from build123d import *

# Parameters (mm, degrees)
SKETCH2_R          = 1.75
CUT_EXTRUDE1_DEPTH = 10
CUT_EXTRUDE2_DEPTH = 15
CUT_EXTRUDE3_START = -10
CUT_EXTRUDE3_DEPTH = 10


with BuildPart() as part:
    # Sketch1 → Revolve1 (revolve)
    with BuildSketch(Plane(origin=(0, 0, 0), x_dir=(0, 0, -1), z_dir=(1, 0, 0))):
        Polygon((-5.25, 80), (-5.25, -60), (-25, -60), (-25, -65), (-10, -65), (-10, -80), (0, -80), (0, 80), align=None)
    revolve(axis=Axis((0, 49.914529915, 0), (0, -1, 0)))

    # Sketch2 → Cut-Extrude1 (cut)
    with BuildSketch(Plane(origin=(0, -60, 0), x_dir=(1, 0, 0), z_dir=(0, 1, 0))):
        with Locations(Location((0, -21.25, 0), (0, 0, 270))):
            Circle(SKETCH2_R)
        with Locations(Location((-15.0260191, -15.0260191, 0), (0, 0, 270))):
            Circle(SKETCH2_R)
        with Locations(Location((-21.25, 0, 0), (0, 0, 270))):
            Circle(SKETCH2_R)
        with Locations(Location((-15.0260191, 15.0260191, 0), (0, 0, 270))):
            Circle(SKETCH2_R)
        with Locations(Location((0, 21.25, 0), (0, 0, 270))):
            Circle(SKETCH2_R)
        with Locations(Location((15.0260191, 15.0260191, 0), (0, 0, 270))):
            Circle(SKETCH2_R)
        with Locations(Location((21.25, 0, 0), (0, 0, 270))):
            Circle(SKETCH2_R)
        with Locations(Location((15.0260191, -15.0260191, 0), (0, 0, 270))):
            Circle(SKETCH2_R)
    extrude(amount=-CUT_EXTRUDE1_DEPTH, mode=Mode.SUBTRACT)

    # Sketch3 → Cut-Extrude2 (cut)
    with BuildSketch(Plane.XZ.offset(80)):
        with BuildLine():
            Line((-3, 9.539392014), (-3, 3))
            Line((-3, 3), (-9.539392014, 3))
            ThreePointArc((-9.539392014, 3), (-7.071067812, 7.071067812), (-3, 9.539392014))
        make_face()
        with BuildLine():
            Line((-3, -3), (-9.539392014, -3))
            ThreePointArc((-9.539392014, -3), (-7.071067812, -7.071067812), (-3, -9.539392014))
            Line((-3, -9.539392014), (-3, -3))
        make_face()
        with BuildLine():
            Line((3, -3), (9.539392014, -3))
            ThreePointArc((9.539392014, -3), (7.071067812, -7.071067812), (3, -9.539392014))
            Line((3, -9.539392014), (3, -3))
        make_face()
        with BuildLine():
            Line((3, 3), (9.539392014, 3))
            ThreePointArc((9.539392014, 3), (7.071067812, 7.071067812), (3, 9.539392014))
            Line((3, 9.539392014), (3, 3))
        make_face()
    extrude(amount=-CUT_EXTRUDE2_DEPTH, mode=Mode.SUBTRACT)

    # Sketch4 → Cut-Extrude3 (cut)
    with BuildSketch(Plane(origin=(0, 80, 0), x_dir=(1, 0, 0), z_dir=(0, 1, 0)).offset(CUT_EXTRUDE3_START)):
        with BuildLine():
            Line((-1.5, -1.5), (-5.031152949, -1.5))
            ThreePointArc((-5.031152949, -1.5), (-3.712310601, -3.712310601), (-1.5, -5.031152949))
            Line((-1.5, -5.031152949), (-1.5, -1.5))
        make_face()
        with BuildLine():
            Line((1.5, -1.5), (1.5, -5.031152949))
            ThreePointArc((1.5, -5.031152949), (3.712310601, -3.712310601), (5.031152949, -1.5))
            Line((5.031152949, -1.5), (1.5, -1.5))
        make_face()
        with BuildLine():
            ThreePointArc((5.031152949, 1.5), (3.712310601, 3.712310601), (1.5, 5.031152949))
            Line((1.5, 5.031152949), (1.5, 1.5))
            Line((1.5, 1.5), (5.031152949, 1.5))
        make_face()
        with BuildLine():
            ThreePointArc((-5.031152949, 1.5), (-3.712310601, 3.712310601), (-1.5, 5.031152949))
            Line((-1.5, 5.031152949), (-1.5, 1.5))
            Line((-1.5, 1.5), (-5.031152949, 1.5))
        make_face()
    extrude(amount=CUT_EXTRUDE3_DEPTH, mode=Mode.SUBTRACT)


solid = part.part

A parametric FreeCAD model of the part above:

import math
import FreeCAD as App
import Part
import Sketcher
Q = App.Units.Quantity

doc = App.newDocument("Part")
body = doc.addObject("PartDesign::Body", "Body")

sketch1 = doc.addObject("Sketcher::SketchObject", "Sketch")
body.addObject(sketch1)
sketch1.AttachmentSupport = (doc.YZ_Plane, [""])
sketch1.MapMode = "FlatFace"
sketch1.addGeometry(Part.LineSegment(App.Vector(80, 5, 0), App.Vector(-60, 5, 0)), False)
sketch1.addGeometry(Part.LineSegment(App.Vector(-60, 5, 0), App.Vector(-60, 25, 0)), False)
sketch1.addGeometry(Part.LineSegment(App.Vector(-60, 25, 0), App.Vector(-65, 25, 0)), False)
sketch1.addGeometry(Part.LineSegment(App.Vector(-65, 25, 0), App.Vector(-65, 10, 0)), False)
sketch1.addGeometry(Part.LineSegment(App.Vector(-65, 10, 0), App.Vector(-80, 10, 0)), False)
sketch1.addGeometry(Part.LineSegment(App.Vector(-80, 10, 0), App.Vector(-80, 0, 0)), False)
sketch1.addGeometry(Part.LineSegment(App.Vector(-80, 0, 0), App.Vector(80, 0, 0)), False)
sketch1.addGeometry(Part.LineSegment(App.Vector(80, 0, 0), App.Vector(80, 5, 0)), False)
sketch1.addConstraint(Sketcher.Constraint("Coincident", 0, 2, 1, 1))
sketch1.addConstraint(Sketcher.Constraint("Coincident", 1, 2, 2, 1))
sketch1.addConstraint(Sketcher.Constraint("Coincident", 2, 2, 3, 1))
sketch1.addConstraint(Sketcher.Constraint("Coincident", 3, 2, 4, 1))
sketch1.addConstraint(Sketcher.Constraint("Coincident", 4, 2, 5, 1))
sketch1.addConstraint(Sketcher.Constraint("Coincident", 5, 2, 6, 1))
sketch1.addConstraint(Sketcher.Constraint("Coincident", 6, 2, 7, 1))
sketch1.addConstraint(Sketcher.Constraint("Coincident", 7, 2, 0, 1))
sketch1.addConstraint(Sketcher.Constraint("Horizontal", 0))
sketch1.addConstraint(Sketcher.Constraint("Vertical", 1))
sketch1.addConstraint(Sketcher.Constraint("Horizontal", 2))
sketch1.addConstraint(Sketcher.Constraint("Vertical", 3))
sketch1.addConstraint(Sketcher.Constraint("Horizontal", 4))
sketch1.addConstraint(Sketcher.Constraint("Vertical", 5))
sketch1.addConstraint(Sketcher.Constraint("Horizontal", 6))
sketch1.addConstraint(Sketcher.Constraint("Vertical", 7))
sketch1.addConstraint(Sketcher.Constraint("Symmetric", 5, 2, 6, 2, -1, 1))
sketch1.addConstraint(Sketcher.Constraint("Equal", 4, 3))
sketch1.addConstraint(Sketcher.Constraint("DistanceX", 0, 2, 0, 1, Q("140 mm")))
sketch1.addConstraint(Sketcher.Constraint("DistanceX", 2, 2, 2, 1, Q("5 mm")))
sketch1.addConstraint(Sketcher.Constraint("DistanceX", 4, 2, 4, 1, Q("15 mm")))
sketch1.addConstraint(Sketcher.Constraint("DistanceY", 5, 2, 5, 1, Q("10 mm")))
sketch1.addConstraint(Sketcher.Constraint("DistanceY", 1, 1, 1, 2, Q("19.75 mm")))
revolution = doc.addObject("PartDesign::Revolution", "Revolution")
body.addObject(revolution)
revolution.Profile = sketch1
revolution.ReferenceAxis = (sketch1, ["H_Axis"])
revolution.Angle = 360

sketch2 = doc.addObject("Sketcher::SketchObject", "Sketch001")
body.addObject(sketch2)
sketch2.AttachmentSupport = (doc.XZ_Plane, [""])
sketch2.MapMode = "FlatFace"
sketch2.AttachmentOffset = App.Placement(App.Vector(0, 0, 60), App.Rotation())
sketch2.addGeometry(Part.Circle(App.Vector(0, 21.2, 0), App.Vector(0, 0, 1), 1.8), False)
sketch2.addGeometry(Part.Circle(App.Vector(-15, 15, 0), App.Vector(0, 0, 1), 1.8), False)
sketch2.addGeometry(Part.Circle(App.Vector(-21.2, 0, 0), App.Vector(0, 0, 1), 1.8), False)
sketch2.addGeometry(Part.Circle(App.Vector(-15, -15, 0), App.Vector(0, 0, 1), 1.8), False)
sketch2.addGeometry(Part.Circle(App.Vector(0, -21.2, 0), App.Vector(0, 0, 1), 1.8), False)
sketch2.addGeometry(Part.Circle(App.Vector(15, -15, 0), App.Vector(0, 0, 1), 1.8), False)
sketch2.addGeometry(Part.Circle(App.Vector(21.2, 0, 0), App.Vector(0, 0, 1), 1.8), False)
sketch2.addGeometry(Part.Circle(App.Vector(15, 15, 0), App.Vector(0, 0, 1), 1.8), False)
sketch2.addConstraint(Sketcher.Constraint("Equal", 0, 1))
sketch2.addConstraint(Sketcher.Constraint("Equal", 1, 2))
sketch2.addConstraint(Sketcher.Constraint("Equal", 2, 3))
sketch2.addConstraint(Sketcher.Constraint("Equal", 3, 4))
sketch2.addConstraint(Sketcher.Constraint("Equal", 4, 5))
sketch2.addConstraint(Sketcher.Constraint("Equal", 5, 6))
sketch2.addConstraint(Sketcher.Constraint("Equal", 6, 7))
sketch2.addConstraint(Sketcher.Constraint("Symmetric", 0, 3, 4, 3, -1, 1))
sketch2.addConstraint(Sketcher.Constraint("Symmetric", 1, 3, 5, 3, -1, 1))
sketch2.addConstraint(Sketcher.Constraint("Symmetric", 2, 3, 6, 3, -1, 1))
sketch2.addConstraint(Sketcher.Constraint("Symmetric", 3, 3, 7, 3, -1, 1))
sketch2.addConstraint(Sketcher.Constraint("Symmetric", 3, 3, 5, 3, -2))
sketch2.addConstraint(Sketcher.Constraint("PointOnObject", 0, 3, -2))
sketch2.addConstraint(Sketcher.Constraint("PointOnObject", 2, 3, -1))
sketch2.addConstraint(Sketcher.Constraint("Diameter", 0, Q("3.5 mm")))
sketch2.addConstraint(Sketcher.Constraint("DistanceY", 4, 3, 0, 3, Q("42.5 mm")))
sketch2.addConstraint(Sketcher.Constraint("DistanceX", 2, 3, -1, 1, Q("21.25 mm")))
sketch2.addConstraint(Sketcher.Constraint("DistanceX", 1, 3, -1, 1, Q("15.026019 mm")))
sketch2.addConstraint(Sketcher.Constraint("DistanceY", -1, 1, 1, 3, Q("15.026019 mm")))
pocket1 = doc.addObject("PartDesign::Pocket", "Pocket")
body.addObject(pocket1)
pocket1.Profile = sketch2
pocket1.Length = 10
pocket1.Reversed = True

sketch3 = doc.addObject("Sketcher::SketchObject", "Sketch002")
body.addObject(sketch3)
sketch3.AttachmentSupport = (doc.XZ_Plane, [""])
sketch3.MapMode = "FlatFace"
sketch3.AttachmentOffset = App.Placement(App.Vector(0, 0, 80), App.Rotation())
sketch3.addGeometry(Part.LineSegment(App.Vector(-3, 3, 0), App.Vector(-3, 10, 0)), False)
sketch3.addGeometry(Part.ArcOfCircle(Part.Circle(App.Vector(0, 0, 0), App.Vector(0, 0, 1), 10), math.radians(107), math.radians(163)), False)
sketch3.addGeometry(Part.LineSegment(App.Vector(-10, 3, 0), App.Vector(-3, 3, 0)), False)
sketch3.addGeometry(Part.LineSegment(App.Vector(-3, -3, 0), App.Vector(-10, -3, 0)), False)
sketch3.addGeometry(Part.ArcOfCircle(Part.Circle(App.Vector(0, 0, 0), App.Vector(0, 0, 1), 10), math.radians(-163), math.radians(-107)), False)
sketch3.addGeometry(Part.LineSegment(App.Vector(-3, -10, 0), App.Vector(-3, -3, 0)), False)
sketch3.addGeometry(Part.LineSegment(App.Vector(10, -3, 0), App.Vector(3, -3, 0)), False)
sketch3.addGeometry(Part.LineSegment(App.Vector(3, -3, 0), App.Vector(3, -10, 0)), False)
sketch3.addGeometry(Part.ArcOfCircle(Part.Circle(App.Vector(0, 0, 0), App.Vector(0, 0, 1), 10), math.radians(-73), math.radians(-17)), False)
sketch3.addGeometry(Part.LineSegment(App.Vector(3, 3, 0), App.Vector(10, 3, 0)), False)
sketch3.addGeometry(Part.ArcOfCircle(Part.Circle(App.Vector(0, 0, 0), App.Vector(0, 0, 1), 10), math.radians(17), math.radians(73)), False)
sketch3.addGeometry(Part.LineSegment(App.Vector(3, 10, 0), App.Vector(3, 3, 0)), False)
sketch3.addConstraint(Sketcher.Constraint("Coincident", 0, 2, 1, 1))
sketch3.addConstraint(Sketcher.Constraint("Coincident", 1, 2, 2, 1))
sketch3.addConstraint(Sketcher.Constraint("Coincident", 2, 2, 0, 1))
sketch3.addConstraint(Sketcher.Constraint("Coincident", 3, 2, 4, 1))
sketch3.addConstraint(Sketcher.Constraint("Coincident", 4, 2, 5, 1))
sketch3.addConstraint(Sketcher.Constraint("Coincident", 5, 2, 3, 1))
sketch3.addConstraint(Sketcher.Constraint("Coincident", 6, 2, 7, 1))
sketch3.addConstraint(Sketcher.Constraint("Coincident", 7, 2, 8, 1))
sketch3.addConstraint(Sketcher.Constraint("Coincident", 8, 2, 6, 1))
sketch3.addConstraint(Sketcher.Constraint("Coincident", 9, 2, 10, 1))
sketch3.addConstraint(Sketcher.Constraint("Coincident", 10, 2, 11, 1))
sketch3.addConstraint(Sketcher.Constraint("Coincident", 11, 2, 9, 1))
sketch3.addConstraint(Sketcher.Constraint("Vertical", 0))
sketch3.addConstraint(Sketcher.Constraint("Horizontal", 2))
sketch3.addConstraint(Sketcher.Constraint("Horizontal", 3))
sketch3.addConstraint(Sketcher.Constraint("Vertical", 5))
sketch3.addConstraint(Sketcher.Constraint("Horizontal", 6))
sketch3.addConstraint(Sketcher.Constraint("Vertical", 7))
sketch3.addConstraint(Sketcher.Constraint("Horizontal", 9))
sketch3.addConstraint(Sketcher.Constraint("Vertical", 11))
sketch3.addConstraint(Sketcher.Constraint("Coincident", 1, 3, -1, 1))
sketch3.addConstraint(Sketcher.Constraint("Coincident", 4, 3, -1, 1))
sketch3.addConstraint(Sketcher.Constraint("Coincident", 8, 3, -1, 1))
sketch3.addConstraint(Sketcher.Constraint("Coincident", 10, 3, -1, 1))
sketch3.addConstraint(Sketcher.Constraint("Equal", 1, 4))
sketch3.addConstraint(Sketcher.Constraint("Equal", 4, 8))
sketch3.addConstraint(Sketcher.Constraint("Equal", 8, 10))
sketch3.addConstraint(Sketcher.Constraint("Symmetric", 2, 2, 6, 2, -1, 1))
sketch3.addConstraint(Sketcher.Constraint("Symmetric", 5, 2, 11, 2, -1, 1))
sketch3.addConstraint(Sketcher.Constraint("Symmetric", 5, 2, 6, 2, -2))
sketch3.addConstraint(Sketcher.Constraint("Equal", 9, 0))
sketch3.addConstraint(Sketcher.Constraint("Radius", 1, Q("10 mm")))
sketch3.addConstraint(Sketcher.Constraint("DistanceX", 0, 2, -1, 1, Q("3 mm")))
pocket2 = doc.addObject("PartDesign::Pocket", "Pocket001")
body.addObject(pocket2)
pocket2.Profile = sketch3
pocket2.Length = 15

sketch4 = doc.addObject("Sketcher::SketchObject", "Sketch003")
body.addObject(sketch4)
sketch4.AttachmentSupport = (doc.XZ_Plane, [""])
sketch4.MapMode = "FlatFace"
sketch4.AttachmentOffset = App.Placement(App.Vector(0, 0, -70), App.Rotation())
sketch4.addGeometry(Part.LineSegment(App.Vector(-1.5, 1.5, 0), App.Vector(-5, 1.5, 0)), False)
sketch4.addGeometry(Part.ArcOfCircle(Part.Circle(App.Vector(0, 0, 0), App.Vector(0, 0, 1), 5.2), math.radians(107), math.radians(163)), False)
sketch4.addGeometry(Part.LineSegment(App.Vector(-1.5, 5, 0), App.Vector(-1.5, 1.5, 0)), False)
sketch4.addGeometry(Part.LineSegment(App.Vector(1.5, 1.5, 0), App.Vector(1.5, 5, 0)), False)
sketch4.addGeometry(Part.ArcOfCircle(Part.Circle(App.Vector(0, 0, 0), App.Vector(0, 0, 1), 5.2), math.radians(17), math.radians(73)), False)
sketch4.addGeometry(Part.LineSegment(App.Vector(5, 1.5, 0), App.Vector(1.5, 1.5, 0)), False)
sketch4.addGeometry(Part.ArcOfCircle(Part.Circle(App.Vector(0, 0, 0), App.Vector(0, 0, 1), 5.2), math.radians(-73), math.radians(-17)), False)
sketch4.addGeometry(Part.LineSegment(App.Vector(1.5, -5, 0), App.Vector(1.5, -1.5, 0)), False)
sketch4.addGeometry(Part.LineSegment(App.Vector(1.5, -1.5, 0), App.Vector(5, -1.5, 0)), False)
sketch4.addGeometry(Part.ArcOfCircle(Part.Circle(App.Vector(0, 0, 0), App.Vector(0, 0, 1), 5.2), math.radians(-163), math.radians(-107)), False)
sketch4.addGeometry(Part.LineSegment(App.Vector(-5, -1.5, 0), App.Vector(-1.5, -1.5, 0)), False)
sketch4.addGeometry(Part.LineSegment(App.Vector(-1.5, -1.5, 0), App.Vector(-1.5, -5, 0)), False)
sketch4.addConstraint(Sketcher.Constraint("Coincident", 0, 2, 1, 2))
sketch4.addConstraint(Sketcher.Constraint("Coincident", 1, 1, 2, 1))
sketch4.addConstraint(Sketcher.Constraint("Coincident", 2, 2, 0, 1))
sketch4.addConstraint(Sketcher.Constraint("Coincident", 3, 2, 4, 2))
sketch4.addConstraint(Sketcher.Constraint("Coincident", 4, 1, 5, 1))
sketch4.addConstraint(Sketcher.Constraint("Coincident", 5, 2, 3, 1))
sketch4.addConstraint(Sketcher.Constraint("Coincident", 6, 1, 7, 1))
sketch4.addConstraint(Sketcher.Constraint("Coincident", 7, 2, 8, 1))
sketch4.addConstraint(Sketcher.Constraint("Coincident", 8, 2, 6, 2))
sketch4.addConstraint(Sketcher.Constraint("Coincident", 9, 1, 10, 1))
sketch4.addConstraint(Sketcher.Constraint("Coincident", 10, 2, 11, 1))
sketch4.addConstraint(Sketcher.Constraint("Coincident", 11, 2, 9, 2))
sketch4.addConstraint(Sketcher.Constraint("Horizontal", 0))
sketch4.addConstraint(Sketcher.Constraint("Vertical", 2))
sketch4.addConstraint(Sketcher.Constraint("Vertical", 3))
sketch4.addConstraint(Sketcher.Constraint("Horizontal", 5))
sketch4.addConstraint(Sketcher.Constraint("Vertical", 7))
sketch4.addConstraint(Sketcher.Constraint("Horizontal", 8))
sketch4.addConstraint(Sketcher.Constraint("Horizontal", 10))
sketch4.addConstraint(Sketcher.Constraint("Vertical", 11))
sketch4.addConstraint(Sketcher.Constraint("Coincident", 1, 3, -1, 1))
sketch4.addConstraint(Sketcher.Constraint("Coincident", 4, 3, -1, 1))
sketch4.addConstraint(Sketcher.Constraint("Coincident", 6, 3, -1, 1))
sketch4.addConstraint(Sketcher.Constraint("Coincident", 9, 3, -1, 1))
sketch4.addConstraint(Sketcher.Constraint("Equal", 1, 4))
sketch4.addConstraint(Sketcher.Constraint("Equal", 4, 6))
sketch4.addConstraint(Sketcher.Constraint("Equal", 6, 9))
sketch4.addConstraint(Sketcher.Constraint("Symmetric", 2, 2, 7, 2, -1, 1))
sketch4.addConstraint(Sketcher.Constraint("Symmetric", 5, 2, 10, 2, -1, 1))
sketch4.addConstraint(Sketcher.Constraint("Symmetric", 2, 2, 5, 2, -2))
sketch4.addConstraint(Sketcher.Constraint("Equal", 10, 2))
sketch4.addConstraint(Sketcher.Constraint("Radius", 1, Q("5.25 mm")))
sketch4.addConstraint(Sketcher.Constraint("DistanceX", 1, 1, 3, 2, Q("3 mm")))
pocket3 = doc.addObject("PartDesign::Pocket", "Pocket002")
body.addObject(pocket3)
pocket3.Profile = sketch4
pocket3.Length = 10

doc.recompute()
